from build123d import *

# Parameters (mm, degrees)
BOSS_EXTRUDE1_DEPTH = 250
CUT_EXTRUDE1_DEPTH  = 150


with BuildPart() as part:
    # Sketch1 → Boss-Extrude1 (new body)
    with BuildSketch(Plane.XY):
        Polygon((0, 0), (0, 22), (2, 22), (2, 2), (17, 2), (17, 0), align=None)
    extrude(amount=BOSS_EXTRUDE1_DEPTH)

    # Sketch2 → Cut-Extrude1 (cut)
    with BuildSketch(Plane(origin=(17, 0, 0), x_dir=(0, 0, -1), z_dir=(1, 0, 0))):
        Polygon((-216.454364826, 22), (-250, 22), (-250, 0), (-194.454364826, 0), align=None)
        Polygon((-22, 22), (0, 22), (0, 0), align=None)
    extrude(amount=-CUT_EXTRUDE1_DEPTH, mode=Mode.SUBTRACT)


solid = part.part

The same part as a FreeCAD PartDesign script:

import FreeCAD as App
import Part
import Sketcher

V = App.Vector


def add_polygon(sketch, points):
    """Adds a closed chain of lines whose ends are joined by coincident constraints."""
    first, n = sketch.GeometryCount, len(points)
    for a, b in zip(points, points[1:] + points[:1]):
        sketch.addGeometry(Part.LineSegment(App.Vector(*a, 0), App.Vector(*b, 0)), False)
    for i in range(n):
        sketch.addConstraint(Sketcher.Constraint("Coincident", first + i, 2, first + (i + 1) % n, 1))

doc = App.newDocument("Part")
body = doc.addObject("PartDesign::Body", "Body")

# Sketch on XY plane
sketch1 = doc.addObject("Sketcher::SketchObject", "Sketch")
body.addObject(sketch1)
sketch1.AttachmentSupport = (doc.XY_Plane, [""])
sketch1.MapMode = "FlatFace"
add_polygon(sketch1, [(0, 22), (0, 0), (17, 0), (17, 2), (2, 2), (2, 22)])  # lines 0-5
sketch1.addConstraint(Sketcher.Constraint("Vertical", 0))
sketch1.addConstraint(Sketcher.Constraint("Horizontal", 1))
sketch1.addConstraint(Sketcher.Constraint("Vertical", 2))
sketch1.addConstraint(Sketcher.Constraint("Horizontal", 3))
sketch1.addConstraint(Sketcher.Constraint("Vertical", 4))
sketch1.addConstraint(Sketcher.Constraint("Horizontal", 5))
sketch1.addConstraint(Sketcher.Constraint("Coincident", 0, 2, -1, 1))
sketch1.addConstraint(Sketcher.Constraint("Equal", 5, 2))
sketch1.addConstraint(Sketcher.Constraint("DistanceX", 1, 1, 1, 2, 17.0))
sketch1.addConstraint(Sketcher.Constraint("DistanceX", 3, 2, 3, 1, 15.0))
sketch1.addConstraint(Sketcher.Constraint("DistanceY", 0, 2, 0, 1, 22.0))
pad1 = doc.addObject("PartDesign::Pad", "Pad")
body.addObject(pad1)
pad1.Profile = sketch1
pad1.Length = 250

# Sketch on YZ plane
sketch2 = doc.addObject("Sketcher::SketchObject", "Sketch001")
body.addObject(sketch2)
sketch2.AttachmentSupport = (doc.YZ_Plane, [""])
sketch2.MapMode = "FlatFace"
sketch2.AttachmentOffset = App.Placement(V(0, 0, 17), App.Rotation())
add_polygon(sketch2, [(22, 216.454365), (22, 250), (0, 250), (0, 194.454365)])  # lines 0-3
add_polygon(sketch2, [(22, 0), (22, 22), (0, 0)])  # lines 4-6
sketch2.addConstraint(Sketcher.Constraint("Vertical", 0))
sketch2.addConstraint(Sketcher.Constraint("Horizontal", 1))
sketch2.addConstraint(Sketcher.Constraint("Vertical", 2))
sketch2.addConstraint(Sketcher.Constraint("Vertical", 4))
sketch2.addConstraint(Sketcher.Constraint("Horizontal", 6))
sketch2.addConstraint(Sketcher.Constraint("Coincident", 5, 2, -1, 1))
sketch2.addConstraint(Sketcher.Constraint("PointOnObject", 1, 2, -2))
sketch2.addConstraint(Sketcher.Constraint("Parallel", 3, 5))
sketch2.addConstraint(Sketcher.Constraint("Vertical", 3, 2, 4, 2))
sketch2.addConstraint(Sketcher.Constraint("Equal", 6, 4))
sketch2.addConstraint(Sketcher.Constraint("DistanceX", 1, 2, 1, 1, 22.0))
sketch2.addConstraint(Sketcher.Constraint("DistanceY", -1, 1, 0, 2, 250.0))
sketch2.addConstraint(Sketcher.Constraint("DistanceY", 0, 1, 0, 2, 33.545635))
pocket1 = doc.addObject("PartDesign::Pocket", "Pocket")
body.addObject(pocket1)
pocket1.Profile = sketch2
pocket1.Length = 150

doc.recompute()
